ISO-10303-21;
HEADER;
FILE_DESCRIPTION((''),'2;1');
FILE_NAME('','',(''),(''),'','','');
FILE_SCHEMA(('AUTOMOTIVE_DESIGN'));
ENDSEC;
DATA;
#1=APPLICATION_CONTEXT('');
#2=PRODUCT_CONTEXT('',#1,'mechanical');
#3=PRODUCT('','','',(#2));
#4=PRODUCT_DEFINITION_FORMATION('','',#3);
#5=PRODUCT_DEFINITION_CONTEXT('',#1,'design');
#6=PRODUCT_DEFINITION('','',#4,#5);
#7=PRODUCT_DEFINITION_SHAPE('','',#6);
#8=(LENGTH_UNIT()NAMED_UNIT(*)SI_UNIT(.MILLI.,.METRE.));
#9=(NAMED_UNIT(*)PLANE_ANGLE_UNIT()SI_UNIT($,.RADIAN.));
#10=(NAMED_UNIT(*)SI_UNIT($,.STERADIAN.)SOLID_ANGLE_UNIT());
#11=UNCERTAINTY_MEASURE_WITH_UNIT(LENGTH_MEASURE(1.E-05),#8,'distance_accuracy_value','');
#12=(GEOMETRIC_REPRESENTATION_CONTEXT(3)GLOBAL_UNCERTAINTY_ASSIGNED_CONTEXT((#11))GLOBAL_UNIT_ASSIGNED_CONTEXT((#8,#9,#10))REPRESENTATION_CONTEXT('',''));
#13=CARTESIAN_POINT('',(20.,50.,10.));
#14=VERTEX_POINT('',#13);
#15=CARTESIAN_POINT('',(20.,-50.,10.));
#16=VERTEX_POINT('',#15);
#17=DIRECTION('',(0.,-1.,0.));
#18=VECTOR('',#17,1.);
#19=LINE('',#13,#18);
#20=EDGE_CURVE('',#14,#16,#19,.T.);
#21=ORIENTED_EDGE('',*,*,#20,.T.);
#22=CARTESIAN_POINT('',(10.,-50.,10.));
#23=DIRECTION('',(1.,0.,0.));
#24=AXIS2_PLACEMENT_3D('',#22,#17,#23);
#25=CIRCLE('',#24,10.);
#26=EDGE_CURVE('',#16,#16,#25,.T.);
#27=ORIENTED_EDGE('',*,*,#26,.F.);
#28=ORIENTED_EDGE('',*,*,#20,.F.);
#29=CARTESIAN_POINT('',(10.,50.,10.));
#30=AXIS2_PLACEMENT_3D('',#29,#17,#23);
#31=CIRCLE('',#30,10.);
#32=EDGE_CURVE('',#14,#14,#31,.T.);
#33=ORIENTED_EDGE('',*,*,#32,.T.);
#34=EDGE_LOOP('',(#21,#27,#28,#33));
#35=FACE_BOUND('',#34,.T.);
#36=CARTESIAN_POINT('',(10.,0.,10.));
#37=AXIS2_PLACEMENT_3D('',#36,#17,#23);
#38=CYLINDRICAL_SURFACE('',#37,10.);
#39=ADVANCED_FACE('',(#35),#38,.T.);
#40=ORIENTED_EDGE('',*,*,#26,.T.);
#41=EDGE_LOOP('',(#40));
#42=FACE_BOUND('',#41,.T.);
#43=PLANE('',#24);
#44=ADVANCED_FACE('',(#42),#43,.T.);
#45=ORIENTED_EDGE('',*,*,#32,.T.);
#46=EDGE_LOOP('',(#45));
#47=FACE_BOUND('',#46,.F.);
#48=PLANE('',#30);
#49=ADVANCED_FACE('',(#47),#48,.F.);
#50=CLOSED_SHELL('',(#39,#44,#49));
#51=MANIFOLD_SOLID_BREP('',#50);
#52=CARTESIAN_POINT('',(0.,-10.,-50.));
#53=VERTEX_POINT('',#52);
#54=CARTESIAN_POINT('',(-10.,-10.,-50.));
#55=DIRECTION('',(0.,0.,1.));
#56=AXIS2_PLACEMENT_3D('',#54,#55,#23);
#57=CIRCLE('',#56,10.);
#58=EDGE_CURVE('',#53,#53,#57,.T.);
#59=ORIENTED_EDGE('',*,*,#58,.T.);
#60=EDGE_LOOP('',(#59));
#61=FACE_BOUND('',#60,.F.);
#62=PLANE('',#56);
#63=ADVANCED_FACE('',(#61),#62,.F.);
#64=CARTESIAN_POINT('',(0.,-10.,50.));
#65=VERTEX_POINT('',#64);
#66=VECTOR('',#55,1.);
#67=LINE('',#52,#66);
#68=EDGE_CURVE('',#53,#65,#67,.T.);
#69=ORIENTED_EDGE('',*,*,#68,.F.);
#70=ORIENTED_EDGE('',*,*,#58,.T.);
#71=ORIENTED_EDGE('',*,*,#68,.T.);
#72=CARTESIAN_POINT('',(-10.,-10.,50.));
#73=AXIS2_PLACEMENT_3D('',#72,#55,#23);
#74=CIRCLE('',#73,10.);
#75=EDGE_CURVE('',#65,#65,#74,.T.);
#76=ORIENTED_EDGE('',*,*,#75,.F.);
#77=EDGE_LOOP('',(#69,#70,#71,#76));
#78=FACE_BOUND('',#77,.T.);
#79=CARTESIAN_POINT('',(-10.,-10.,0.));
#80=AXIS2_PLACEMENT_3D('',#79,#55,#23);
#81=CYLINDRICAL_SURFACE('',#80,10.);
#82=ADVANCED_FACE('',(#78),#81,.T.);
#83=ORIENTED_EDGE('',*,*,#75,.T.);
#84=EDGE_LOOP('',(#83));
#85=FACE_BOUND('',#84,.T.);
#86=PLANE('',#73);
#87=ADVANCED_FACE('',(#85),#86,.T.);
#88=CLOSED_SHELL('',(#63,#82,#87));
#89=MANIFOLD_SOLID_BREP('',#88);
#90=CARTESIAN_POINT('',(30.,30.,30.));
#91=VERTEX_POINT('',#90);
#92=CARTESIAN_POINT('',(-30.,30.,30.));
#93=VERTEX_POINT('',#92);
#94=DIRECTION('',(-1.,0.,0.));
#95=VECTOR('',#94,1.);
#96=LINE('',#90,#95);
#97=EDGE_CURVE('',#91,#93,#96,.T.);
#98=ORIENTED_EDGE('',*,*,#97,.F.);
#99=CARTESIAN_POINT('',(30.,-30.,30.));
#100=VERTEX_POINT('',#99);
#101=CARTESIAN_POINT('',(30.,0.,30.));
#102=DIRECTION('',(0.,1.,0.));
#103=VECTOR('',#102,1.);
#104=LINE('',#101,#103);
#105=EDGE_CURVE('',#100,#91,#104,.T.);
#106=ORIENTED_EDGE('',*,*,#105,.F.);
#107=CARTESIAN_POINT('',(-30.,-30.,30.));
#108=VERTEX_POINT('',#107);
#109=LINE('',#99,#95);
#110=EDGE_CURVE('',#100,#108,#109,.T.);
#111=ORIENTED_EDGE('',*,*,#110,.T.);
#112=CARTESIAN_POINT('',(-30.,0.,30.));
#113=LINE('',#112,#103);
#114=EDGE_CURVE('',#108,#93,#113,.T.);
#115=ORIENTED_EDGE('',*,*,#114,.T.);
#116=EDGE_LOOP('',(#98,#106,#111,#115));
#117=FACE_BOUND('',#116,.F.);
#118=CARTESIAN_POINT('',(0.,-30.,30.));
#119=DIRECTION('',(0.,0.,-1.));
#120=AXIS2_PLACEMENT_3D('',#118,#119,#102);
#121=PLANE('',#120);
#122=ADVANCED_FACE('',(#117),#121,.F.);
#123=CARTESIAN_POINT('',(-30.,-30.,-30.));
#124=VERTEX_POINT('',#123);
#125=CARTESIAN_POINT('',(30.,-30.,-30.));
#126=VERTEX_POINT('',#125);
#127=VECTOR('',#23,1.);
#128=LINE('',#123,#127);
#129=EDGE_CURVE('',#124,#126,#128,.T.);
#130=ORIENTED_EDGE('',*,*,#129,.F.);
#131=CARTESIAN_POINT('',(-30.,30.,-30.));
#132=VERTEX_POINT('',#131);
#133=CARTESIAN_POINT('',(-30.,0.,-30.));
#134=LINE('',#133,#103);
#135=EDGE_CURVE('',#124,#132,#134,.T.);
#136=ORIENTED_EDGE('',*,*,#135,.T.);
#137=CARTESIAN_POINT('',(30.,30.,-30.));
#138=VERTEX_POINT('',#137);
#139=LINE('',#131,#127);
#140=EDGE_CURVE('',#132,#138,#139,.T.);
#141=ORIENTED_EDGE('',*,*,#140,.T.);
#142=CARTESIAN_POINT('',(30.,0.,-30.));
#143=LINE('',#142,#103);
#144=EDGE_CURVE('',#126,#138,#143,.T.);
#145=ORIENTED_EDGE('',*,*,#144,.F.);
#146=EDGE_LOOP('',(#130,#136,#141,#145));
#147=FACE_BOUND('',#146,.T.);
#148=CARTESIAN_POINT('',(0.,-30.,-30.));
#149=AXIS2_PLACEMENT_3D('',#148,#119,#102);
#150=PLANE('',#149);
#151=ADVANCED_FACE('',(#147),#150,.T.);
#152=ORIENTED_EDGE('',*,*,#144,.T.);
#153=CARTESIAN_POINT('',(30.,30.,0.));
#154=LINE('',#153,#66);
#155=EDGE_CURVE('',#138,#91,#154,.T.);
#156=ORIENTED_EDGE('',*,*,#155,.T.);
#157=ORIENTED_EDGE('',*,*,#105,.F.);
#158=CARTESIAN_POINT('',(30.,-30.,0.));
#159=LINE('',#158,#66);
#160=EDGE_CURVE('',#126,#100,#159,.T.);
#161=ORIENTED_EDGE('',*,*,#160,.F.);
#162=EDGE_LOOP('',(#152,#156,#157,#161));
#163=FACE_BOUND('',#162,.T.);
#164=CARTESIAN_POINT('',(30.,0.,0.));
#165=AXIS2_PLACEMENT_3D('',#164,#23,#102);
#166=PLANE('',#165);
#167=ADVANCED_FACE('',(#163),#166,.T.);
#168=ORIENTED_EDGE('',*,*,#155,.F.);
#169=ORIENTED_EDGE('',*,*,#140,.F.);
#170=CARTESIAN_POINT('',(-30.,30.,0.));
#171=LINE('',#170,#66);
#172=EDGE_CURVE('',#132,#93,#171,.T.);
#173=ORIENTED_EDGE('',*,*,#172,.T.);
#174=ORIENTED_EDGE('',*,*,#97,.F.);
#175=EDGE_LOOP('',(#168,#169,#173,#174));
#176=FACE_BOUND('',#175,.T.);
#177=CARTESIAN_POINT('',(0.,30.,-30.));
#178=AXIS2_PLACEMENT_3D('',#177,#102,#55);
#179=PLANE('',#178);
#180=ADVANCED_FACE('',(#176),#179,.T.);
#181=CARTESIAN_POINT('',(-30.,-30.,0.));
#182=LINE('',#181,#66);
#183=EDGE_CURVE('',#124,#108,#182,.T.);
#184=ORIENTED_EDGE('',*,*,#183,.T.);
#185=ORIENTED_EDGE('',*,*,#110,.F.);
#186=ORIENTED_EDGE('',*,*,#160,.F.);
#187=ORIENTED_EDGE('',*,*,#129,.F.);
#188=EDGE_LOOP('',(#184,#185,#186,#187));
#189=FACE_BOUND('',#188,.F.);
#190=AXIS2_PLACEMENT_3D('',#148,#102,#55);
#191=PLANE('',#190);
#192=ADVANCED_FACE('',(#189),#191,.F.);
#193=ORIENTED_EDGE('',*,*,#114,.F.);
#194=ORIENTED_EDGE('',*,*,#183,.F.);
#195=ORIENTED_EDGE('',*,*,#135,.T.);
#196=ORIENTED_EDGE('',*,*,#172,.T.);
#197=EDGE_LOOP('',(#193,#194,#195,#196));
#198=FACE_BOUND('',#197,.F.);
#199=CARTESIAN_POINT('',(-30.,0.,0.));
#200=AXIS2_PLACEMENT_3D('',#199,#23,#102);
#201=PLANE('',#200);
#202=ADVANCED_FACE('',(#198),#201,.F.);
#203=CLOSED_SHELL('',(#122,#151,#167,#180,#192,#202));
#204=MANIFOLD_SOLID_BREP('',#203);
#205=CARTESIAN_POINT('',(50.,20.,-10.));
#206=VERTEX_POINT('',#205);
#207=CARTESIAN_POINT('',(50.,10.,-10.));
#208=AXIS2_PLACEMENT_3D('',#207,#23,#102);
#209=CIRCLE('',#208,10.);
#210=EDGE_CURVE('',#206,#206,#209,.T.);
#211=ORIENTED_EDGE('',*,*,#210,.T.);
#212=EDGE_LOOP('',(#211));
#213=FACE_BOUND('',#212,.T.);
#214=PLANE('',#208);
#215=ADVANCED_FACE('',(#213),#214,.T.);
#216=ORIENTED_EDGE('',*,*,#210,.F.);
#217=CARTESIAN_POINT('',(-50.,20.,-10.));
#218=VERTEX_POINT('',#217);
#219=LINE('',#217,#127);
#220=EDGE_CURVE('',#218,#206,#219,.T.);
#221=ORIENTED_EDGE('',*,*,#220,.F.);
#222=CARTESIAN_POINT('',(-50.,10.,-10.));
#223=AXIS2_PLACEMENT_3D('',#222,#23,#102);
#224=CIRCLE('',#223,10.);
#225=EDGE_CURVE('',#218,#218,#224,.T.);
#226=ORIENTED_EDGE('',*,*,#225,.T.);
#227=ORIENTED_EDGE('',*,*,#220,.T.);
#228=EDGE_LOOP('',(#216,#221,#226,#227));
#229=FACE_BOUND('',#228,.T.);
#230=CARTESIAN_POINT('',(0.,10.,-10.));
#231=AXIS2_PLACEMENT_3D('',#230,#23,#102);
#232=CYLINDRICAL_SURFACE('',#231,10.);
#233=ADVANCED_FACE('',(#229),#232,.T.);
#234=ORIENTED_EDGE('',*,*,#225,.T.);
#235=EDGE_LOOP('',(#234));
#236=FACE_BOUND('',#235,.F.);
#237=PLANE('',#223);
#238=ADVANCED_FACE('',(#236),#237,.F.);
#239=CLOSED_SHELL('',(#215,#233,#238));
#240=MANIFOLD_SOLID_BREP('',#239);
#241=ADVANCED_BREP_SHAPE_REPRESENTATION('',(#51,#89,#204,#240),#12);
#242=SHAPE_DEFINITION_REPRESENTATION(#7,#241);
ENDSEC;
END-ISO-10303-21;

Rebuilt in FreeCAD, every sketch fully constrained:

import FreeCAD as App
import Part
import Sketcher

V = App.Vector

doc = App.newDocument("Part")
params = doc.addObject("Spreadsheet::Sheet", "Params")
for row, (alias, value) in enumerate([
    ("sketch1_diameter", "20 mm"),
    ("pad1_length", "100 mm"),
    ("sketch2_diameter", "20 mm"),
    ("pad2_length", "100 mm"),
    ("sketch3_diameter", "20 mm"),
    ("pad3_length", "100 mm"),
    ("sketch4_width", "60 mm"),
    ("pad4_length", "60 mm"),
], start=1):
    params.set(f"A{row}", alias)
    params.set(f"B{row}", "=" + value)
    params.setAlias(f"B{row}", alias)

body = doc.addObject("PartDesign::Body", "Body")

# Sketch on XY plane
sketch1 = body.newObject("Sketcher::SketchObject", "Sketch")
sketch1.AttachmentSupport = (doc.getObject("XY_Plane"), [""])
sketch1.MapMode = "FlatFace"
sketch1.addGeometry(Part.Circle(V(-10, -10, 0), V(0, 0, 1), 10), False)
sketch1.addConstraint([
    Sketcher.Constraint("Diameter", 0, 20.0),
    Sketcher.Constraint("DistanceX", 0, 3, -1, 1, 10.0),
    Sketcher.Constraint("DistanceY", 0, 3, -1, 1, 10.0),
])
sketch1.setExpression("Constraints[0]", "Params.sketch1_diameter")
pad1 = body.newObject("PartDesign::Pad", "Pad")
pad1.Profile = sketch1
pad1.setExpression("Length", "Params.pad1_length")
pad1.Midplane = True
body2 = doc.addObject("PartDesign::Body", "Body001")

# Sketch on XZ plane
sketch2 = body2.newObject("Sketcher::SketchObject", "Sketch001")
sketch2.AttachmentSupport = (doc.getObject("XZ_Plane001"), [""])
sketch2.MapMode = "FlatFace"
sketch2.addGeometry(Part.Circle(V(10, 10, 0), V(0, 0, 1), 10), False)
sketch2.addConstraint([
    Sketcher.Constraint("Diameter", 0, 20.0),
    Sketcher.Constraint("DistanceX", -1, 1, 0, 3, 10.0),
    Sketcher.Constraint("DistanceY", -1, 1, 0, 3, 10.0),
])
sketch2.setExpression("Constraints[0]", "Params.sketch2_diameter")
pad2 = body2.newObject("PartDesign::Pad", "Pad001")
pad2.Profile = sketch2
pad2.setExpression("Length", "Params.pad2_length")
pad2.Midplane = True
body3 = doc.addObject("PartDesign::Body", "Body002")

# Sketch on YZ plane
sketch3 = body3.newObject("Sketcher::SketchObject", "Sketch002")
sketch3.AttachmentSupport = (doc.getObject("YZ_Plane002"), [""])
sketch3.MapMode = "FlatFace"
sketch3.addGeometry(Part.Circle(V(10, -10, 0), V(0, 0, 1), 10), False)
sketch3.addConstraint([
    Sketcher.Constraint("Diameter", 0, 20.0),
    Sketcher.Constraint("DistanceX", -1, 1, 0, 3, 10.0),
    Sketcher.Constraint("DistanceY", 0, 3, -1, 1, 10.0),
])
sketch3.setExpression("Constraints[0]", "Params.sketch3_diameter")
pad3 = body3.newObject("PartDesign::Pad", "Pad002")
pad3.Profile = sketch3
pad3.setExpression("Length", "Params.pad3_length")
pad3.Midplane = True
body4 = doc.addObject("PartDesign::Body", "Body003")

# Sketch on YZ plane
sketch4 = body4.newObject("Sketcher::SketchObject", "Sketch003")
sketch4.AttachmentSupport = (doc.getObject("YZ_Plane003"), [""])
sketch4.MapMode = "FlatFace"
sketch4.addGeometry([
    Part.LineSegment(V(-30, 30, 0), V(-30, -30, 0)),
    Part.LineSegment(V(-30, -30, 0), V(30, -30, 0)),
    Part.LineSegment(V(30, -30, 0), V(30, 30, 0)),
    Part.LineSegment(V(30, 30, 0), V(-30, 30, 0)),
], False)
sketch4.addConstraint([
    Sketcher.Constraint("Coincident", 0, 2, 1, 1),
    Sketcher.Constraint("Coincident", 1, 2, 2, 1),
    Sketcher.Constraint("Coincident", 2, 2, 3, 1),
    Sketcher.Constraint("Coincident", 3, 2, 0, 1),
    Sketcher.Constraint("Vertical", 0),
    Sketcher.Constraint("Horizontal", 1),
    Sketcher.Constraint("Vertical", 2),
    Sketcher.Constraint("Horizontal", 3),
    Sketcher.Constraint("Symmetric", 0, 2, 2, 2, -1, 1),
    Sketcher.Constraint("Equal", 3, 0),
    Sketcher.Constraint("DistanceX", 1, 1, 1, 2, 60.0),
])
sketch4.setExpression("Constraints[10]", "Params.sketch4_width")
pad4 = body4.newObject("PartDesign::Pad", "Pad003")
pad4.Profile = sketch4
pad4.setExpression("Length", "Params.pad4_length")
pad4.Midplane = True

doc.recompute()
